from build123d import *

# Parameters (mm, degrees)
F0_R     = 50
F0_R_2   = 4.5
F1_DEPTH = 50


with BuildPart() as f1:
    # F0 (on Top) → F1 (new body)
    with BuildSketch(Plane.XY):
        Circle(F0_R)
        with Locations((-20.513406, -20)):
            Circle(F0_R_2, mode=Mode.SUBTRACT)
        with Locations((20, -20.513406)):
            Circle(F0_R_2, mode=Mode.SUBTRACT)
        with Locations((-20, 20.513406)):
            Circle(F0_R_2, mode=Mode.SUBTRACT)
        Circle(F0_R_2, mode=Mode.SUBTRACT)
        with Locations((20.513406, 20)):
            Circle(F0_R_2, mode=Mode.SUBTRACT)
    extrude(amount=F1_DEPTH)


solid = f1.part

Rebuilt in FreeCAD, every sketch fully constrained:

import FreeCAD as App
import Part
import Sketcher
from FreeCAD import Vector

doc = App.newDocument("Part")
params = doc.addObject("Spreadsheet::Sheet", "Params")
for row, (alias, value) in enumerate([
    ("sketch1_diameter", "100 mm"),
    ("sketch1_diameter2", "9 mm"),
    ("pad1_length", "50 mm"),
], start=1):
    params.set(f"A{row}", alias)
    params.set(f"B{row}", "=" + value)
    params.setAlias(f"B{row}", alias)

body = doc.addObject("PartDesign::Body", "Body")

# Sketch on XY plane
sketch1 = doc.addObject("Sketcher::SketchObject", "Sketch")
body.addObject(sketch1)
sketch1.AttachmentSupport = (doc.XY_Plane, [""])
sketch1.MapMode = "FlatFace"
sketch1.addGeometry([
    Part.Circle(Vector(0, 0, 0), Vector(0, 0, 1), 50),  # 0
    Part.Circle(Vector(-20.5, -20, 0), Vector(0, 0, 1), 4.5),  # 1
    Part.Circle(Vector(20, -20.5, 0), Vector(0, 0, 1), 4.5),  # 2
    Part.Circle(Vector(-20, 20.5, 0), Vector(0, 0, 1), 4.5),  # 3
    Part.Circle(Vector(0, 0, 0), Vector(0, 0, 1), 4.5),  # 4
    Part.Circle(Vector(20.5, 20, 0), Vector(0, 0, 1), 4.5),  # 5
], False)
sketch1.addConstraint([
    Sketcher.Constraint("Coincident", 0, 3, -1, 1),
    Sketcher.Constraint("Coincident", 4, 3, -1, 1),
    Sketcher.Constraint("Equal", 1, 2),
    Sketcher.Constraint("Equal", 2, 3),
    Sketcher.Constraint("Equal", 3, 4),
    Sketcher.Constraint("Equal", 4, 5),
    Sketcher.Constraint("Symmetric", 2, 3, 3, 3, -1, 1),
    Sketcher.Constraint("Symmetric", 1, 3, 5, 3, -1, 1),
    Sketcher.Constraint("Diameter", 0, 100.0),
    Sketcher.Constraint("Diameter", 1, 9.0),
    Sketcher.Constraint("DistanceY", 1, 3, -1, 1, 20.0),
    Sketcher.Constraint("DistanceX", -1, 1, 2, 3, 20.0),
    Sketcher.Constraint("DistanceX", 1, 3, -1, 1, 20.513406),
    Sketcher.Constraint("DistanceY", 2, 3, -1, 1, 20.513406),
])
sketch1.setExpression("Constraints[8]", "Params.sketch1_diameter")
sketch1.setExpression("Constraints[9]", "Params.sketch1_diameter2")
pad1 = doc.addObject("PartDesign::Pad", "Pad")
body.addObject(pad1)
pad1.Profile = sketch1
pad1.setExpression("Length", "Params.pad1_length")

doc.recompute()
